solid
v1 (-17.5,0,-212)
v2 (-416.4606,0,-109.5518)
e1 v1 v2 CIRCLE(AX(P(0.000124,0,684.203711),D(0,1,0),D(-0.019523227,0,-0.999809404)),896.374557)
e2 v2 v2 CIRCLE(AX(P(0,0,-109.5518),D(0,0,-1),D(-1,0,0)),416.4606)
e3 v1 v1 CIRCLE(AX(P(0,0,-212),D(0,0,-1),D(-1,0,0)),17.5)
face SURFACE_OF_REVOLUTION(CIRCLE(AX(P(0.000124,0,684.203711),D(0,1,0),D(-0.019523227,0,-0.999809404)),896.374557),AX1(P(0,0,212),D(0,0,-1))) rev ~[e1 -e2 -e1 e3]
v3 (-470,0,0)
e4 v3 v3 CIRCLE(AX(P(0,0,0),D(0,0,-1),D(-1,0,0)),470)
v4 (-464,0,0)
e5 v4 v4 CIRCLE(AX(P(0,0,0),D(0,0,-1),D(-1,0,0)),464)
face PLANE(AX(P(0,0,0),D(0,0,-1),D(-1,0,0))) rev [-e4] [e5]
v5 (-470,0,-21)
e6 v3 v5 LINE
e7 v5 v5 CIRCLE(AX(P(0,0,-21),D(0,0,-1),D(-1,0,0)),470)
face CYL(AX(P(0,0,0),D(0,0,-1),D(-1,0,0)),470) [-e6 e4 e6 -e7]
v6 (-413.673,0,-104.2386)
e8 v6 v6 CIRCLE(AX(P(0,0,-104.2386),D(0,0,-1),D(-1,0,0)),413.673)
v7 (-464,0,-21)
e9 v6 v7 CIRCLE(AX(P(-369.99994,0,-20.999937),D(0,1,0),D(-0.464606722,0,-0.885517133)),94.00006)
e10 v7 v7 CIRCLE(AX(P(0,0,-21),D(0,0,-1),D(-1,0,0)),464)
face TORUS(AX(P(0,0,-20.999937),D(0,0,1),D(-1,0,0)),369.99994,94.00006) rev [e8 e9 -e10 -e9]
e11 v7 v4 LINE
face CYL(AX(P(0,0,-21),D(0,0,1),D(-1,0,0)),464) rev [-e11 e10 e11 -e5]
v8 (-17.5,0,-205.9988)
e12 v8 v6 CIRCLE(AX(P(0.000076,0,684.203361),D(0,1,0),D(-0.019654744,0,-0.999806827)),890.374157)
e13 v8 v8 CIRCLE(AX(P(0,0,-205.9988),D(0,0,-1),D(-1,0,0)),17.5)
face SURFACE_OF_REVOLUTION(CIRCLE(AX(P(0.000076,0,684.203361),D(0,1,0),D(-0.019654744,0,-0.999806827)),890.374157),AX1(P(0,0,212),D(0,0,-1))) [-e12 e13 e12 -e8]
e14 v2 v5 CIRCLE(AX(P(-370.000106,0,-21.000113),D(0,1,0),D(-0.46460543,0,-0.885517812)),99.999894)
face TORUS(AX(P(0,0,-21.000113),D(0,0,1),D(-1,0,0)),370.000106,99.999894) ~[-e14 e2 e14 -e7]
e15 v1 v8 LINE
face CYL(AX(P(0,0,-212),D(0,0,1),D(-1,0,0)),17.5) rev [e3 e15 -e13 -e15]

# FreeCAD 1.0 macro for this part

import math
import FreeCAD as App
import Part
import Sketcher
Q = App.Units.Quantity

doc = App.newDocument("Part")
body = doc.addObject("PartDesign::Body", "Body")

sketch1 = body.newObject("Sketcher::SketchObject", "Sketch")
sketch1.AttachmentSupport = (doc.getObject("XZ_Plane"), [""])
sketch1.MapMode = "FlatFace"
sketch1.addGeometry(Part.LineSegment(App.Vector(-470, -21, 0), App.Vector(-470, 0, 0)), False)
sketch1.addGeometry(Part.LineSegment(App.Vector(-470, 0, 0), App.Vector(-464, 0, 0)), False)
sketch1.addGeometry(Part.LineSegment(App.Vector(-464, 0, 0), App.Vector(-464, -21, 0)), False)
sketch1.addGeometry(Part.ArcOfCircle(Part.Circle(App.Vector(-370, -21, 0), App.Vector(0, 0, 1), 94), math.radians(180), math.radians(242)), False)
sketch1.addGeometry(Part.ArcOfCircle(Part.Circle(App.Vector(0, 684, 0), App.Vector(0, 0, 1), 890), math.radians(-118), math.radians(-91)), False)
sketch1.addGeometry(Part.LineSegment(App.Vector(-18, -206, 0), App.Vector(-18, -212, 0)), False)
sketch1.addGeometry(Part.ArcOfCircle(Part.Circle(App.Vector(0, 684, 0), App.Vector(0, 0, 1), 896), math.radians(-118), math.radians(-91)), False)
sketch1.addGeometry(Part.ArcOfCircle(Part.Circle(App.Vector(-370, -21, 0), App.Vector(0, 0, 1), 100), math.radians(180), math.radians(242)), False)
sketch1.addConstraint(Sketcher.Constraint("Coincident", 0, 2, 1, 1))
sketch1.addConstraint(Sketcher.Constraint("Coincident", 1, 2, 2, 1))
sketch1.addConstraint(Sketcher.Constraint("Tangent", 2, 2, 3, 1))
sketch1.addConstraint(Sketcher.Constraint("Tangent", 3, 2, 4, 1))
sketch1.addConstraint(Sketcher.Constraint("Coincident", 4, 2, 5, 1))
sketch1.addConstraint(Sketcher.Constraint("Coincident", 5, 2, 6, 2))
sketch1.addConstraint(Sketcher.Constraint("Tangent", 6, 1, 7, 2))
sketch1.addConstraint(Sketcher.Constraint("Tangent", 7, 1, 0, 1))
sketch1.addConstraint(Sketcher.Constraint("Vertical", 0))
sketch1.addConstraint(Sketcher.Constraint("Horizontal", 1))
sketch1.addConstraint(Sketcher.Constraint("Vertical", 2))
sketch1.addConstraint(Sketcher.Constraint("Vertical", 5))
sketch1.addConstraint(Sketcher.Constraint("Coincident", 6, 3, 4, 3))
sketch1.addConstraint(Sketcher.Constraint("Coincident", 7, 3, 3, 3))
sketch1.addConstraint(Sketcher.Constraint("PointOnObject", 4, 3, -2))
sketch1.addConstraint(Sketcher.Constraint("PointOnObject", 0, 2, -1))
sketch1.addConstraint(Sketcher.Constraint("Radius", 7, Q("100 mm")))
sketch1.addConstraint(Sketcher.Constraint("DistanceX", 1, 1, 1, 2, Q("6 mm")))
sketch1.addConstraint(Sketcher.Constraint("DistanceY", 0, 1, 0, 2, Q("21 mm")))
sketch1.addConstraint(Sketcher.Constraint("DistanceY", 5, 2, -1, 1, Q("212 mm")))
sketch1.addConstraint(Sketcher.Constraint("Radius", 6, Q("896.3736 mm")))
sketch1.addConstraint(Sketcher.Constraint("DistanceX", 3, 3, -1, 1, Q("370 mm")))
revolution = body.newObject("PartDesign::Revolution", "Revolution")
revolution.Profile = sketch1
revolution.ReferenceAxis = (sketch1, ["V_Axis"])
revolution.Angle = 360

doc.recompute()
